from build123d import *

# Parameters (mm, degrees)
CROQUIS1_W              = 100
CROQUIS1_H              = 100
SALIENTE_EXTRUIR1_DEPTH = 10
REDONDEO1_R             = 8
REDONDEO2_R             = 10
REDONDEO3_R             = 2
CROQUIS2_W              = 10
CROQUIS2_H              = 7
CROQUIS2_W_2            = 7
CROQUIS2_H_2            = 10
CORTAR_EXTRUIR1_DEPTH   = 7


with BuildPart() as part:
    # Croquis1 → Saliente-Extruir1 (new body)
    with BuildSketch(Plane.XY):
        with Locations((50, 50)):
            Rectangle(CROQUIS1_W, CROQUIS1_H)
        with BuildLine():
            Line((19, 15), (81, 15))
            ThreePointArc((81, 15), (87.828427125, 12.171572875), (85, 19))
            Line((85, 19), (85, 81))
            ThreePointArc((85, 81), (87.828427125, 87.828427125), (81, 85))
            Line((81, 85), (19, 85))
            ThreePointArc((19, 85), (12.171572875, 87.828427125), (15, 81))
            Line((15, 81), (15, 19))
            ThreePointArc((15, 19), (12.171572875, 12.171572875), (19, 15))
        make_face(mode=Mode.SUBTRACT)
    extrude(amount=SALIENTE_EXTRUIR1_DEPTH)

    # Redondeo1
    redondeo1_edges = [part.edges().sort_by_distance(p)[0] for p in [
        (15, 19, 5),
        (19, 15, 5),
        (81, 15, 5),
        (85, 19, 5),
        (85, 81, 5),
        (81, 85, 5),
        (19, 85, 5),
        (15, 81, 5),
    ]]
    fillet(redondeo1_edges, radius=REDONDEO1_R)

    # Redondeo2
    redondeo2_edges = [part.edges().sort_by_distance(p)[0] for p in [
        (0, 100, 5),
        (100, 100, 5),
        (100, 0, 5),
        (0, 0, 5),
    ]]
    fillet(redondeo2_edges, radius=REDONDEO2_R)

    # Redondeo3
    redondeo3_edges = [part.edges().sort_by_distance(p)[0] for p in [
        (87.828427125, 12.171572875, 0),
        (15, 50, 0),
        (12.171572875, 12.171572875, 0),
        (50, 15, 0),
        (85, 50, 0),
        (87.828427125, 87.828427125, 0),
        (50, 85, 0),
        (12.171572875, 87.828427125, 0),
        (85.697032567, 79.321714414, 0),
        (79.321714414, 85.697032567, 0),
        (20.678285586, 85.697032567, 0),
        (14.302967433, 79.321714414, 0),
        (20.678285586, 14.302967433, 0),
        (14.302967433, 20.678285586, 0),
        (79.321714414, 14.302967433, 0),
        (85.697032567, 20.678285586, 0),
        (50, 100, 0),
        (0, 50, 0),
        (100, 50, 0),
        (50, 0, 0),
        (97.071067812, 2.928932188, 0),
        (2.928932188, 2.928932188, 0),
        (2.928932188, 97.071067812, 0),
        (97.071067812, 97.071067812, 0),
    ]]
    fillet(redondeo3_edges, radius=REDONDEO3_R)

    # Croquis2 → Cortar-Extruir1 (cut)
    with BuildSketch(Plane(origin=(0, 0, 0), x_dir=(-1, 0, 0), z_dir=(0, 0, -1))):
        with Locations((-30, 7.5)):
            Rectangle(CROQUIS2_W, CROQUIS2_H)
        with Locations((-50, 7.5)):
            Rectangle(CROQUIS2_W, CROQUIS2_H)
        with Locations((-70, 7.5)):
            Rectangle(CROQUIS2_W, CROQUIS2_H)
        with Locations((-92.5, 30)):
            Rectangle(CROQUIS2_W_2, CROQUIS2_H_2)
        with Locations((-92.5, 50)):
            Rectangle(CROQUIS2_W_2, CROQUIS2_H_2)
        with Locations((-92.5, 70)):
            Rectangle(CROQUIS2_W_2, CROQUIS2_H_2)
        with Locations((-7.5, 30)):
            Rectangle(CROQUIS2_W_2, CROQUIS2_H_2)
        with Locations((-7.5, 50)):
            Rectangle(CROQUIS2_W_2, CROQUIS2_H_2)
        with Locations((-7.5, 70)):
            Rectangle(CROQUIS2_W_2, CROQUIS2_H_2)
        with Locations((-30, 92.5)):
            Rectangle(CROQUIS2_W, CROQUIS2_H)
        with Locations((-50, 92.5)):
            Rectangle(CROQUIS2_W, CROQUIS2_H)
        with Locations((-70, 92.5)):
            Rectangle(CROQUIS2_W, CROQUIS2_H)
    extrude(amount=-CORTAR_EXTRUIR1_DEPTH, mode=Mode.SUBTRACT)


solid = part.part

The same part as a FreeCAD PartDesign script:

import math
import FreeCAD as App
import Part
import Sketcher

V = App.Vector
Q = App.Units.Quantity


def edges_at(feature, points):
    """Names of the edges that pass closest to the given points."""
    edges = feature.Shape.Edges
    near = lambda p: min(range(len(edges)), key=lambda i: edges[i].distToShape(Part.Vertex(*p))[0])
    return sorted({f"Edge{near(p) + 1}" for p in points})

doc = App.newDocument("Part")
body = doc.addObject("PartDesign::Body", "Body")

# Sketch on XY plane
sketch1 = body.newObject("Sketcher::SketchObject", "Sketch")
sketch1.AttachmentSupport = (doc.getObject("XY_Plane"), [""])
sketch1.MapMode = "FlatFace"
sketch1.addGeometry([
    Part.LineSegment(V(0, 100, 0), V(0, 0, 0)),  # 0
    Part.LineSegment(V(0, 0, 0), V(100, 0, 0)),  # 1
    Part.LineSegment(V(100, 0, 0), V(100, 100, 0)),  # 2
    Part.LineSegment(V(100, 100, 0), V(0, 100, 0)),  # 3
    Part.LineSegment(V(81, 15, 0), V(19, 15, 0)),  # 4
    Part.ArcOfCircle(Part.Circle(V(15, 15, 0), V(0, 0, 1), 4), math.radians(90), math.radians(360)),  # 5
    Part.LineSegment(V(15, 19, 0), V(15, 81, 0)),  # 6
    Part.ArcOfCircle(Part.Circle(V(15, 85, 0), V(0, 0, 1), 4), math.radians(0), math.radians(270)),  # 7
    Part.LineSegment(V(19, 85, 0), V(81, 85, 0)),  # 8
    Part.ArcOfCircle(Part.Circle(V(85, 85, 0), V(0, 0, 1), 4), math.radians(-90), math.radians(180)),  # 9
    Part.LineSegment(V(85, 81, 0), V(85, 19, 0)),  # 10
    Part.ArcOfCircle(Part.Circle(V(85, 15, 0), V(0, 0, 1), 4), math.radians(180), math.radians(450)),  # 11
], False)
sketch1.addConstraint([
    Sketcher.Constraint("Coincident", 0, 2, 1, 1),
    Sketcher.Constraint("Coincident", 1, 2, 2, 1),
    Sketcher.Constraint("Coincident", 2, 2, 3, 1),
    Sketcher.Constraint("Coincident", 3, 2, 0, 1),
    Sketcher.Constraint("Coincident", 4, 2, 5, 2),
    Sketcher.Constraint("Coincident", 5, 1, 6, 1),
    Sketcher.Constraint("Coincident", 6, 2, 7, 2),
    Sketcher.Constraint("Coincident", 7, 1, 8, 1),
    Sketcher.Constraint("Coincident", 8, 2, 9, 2),
    Sketcher.Constraint("Coincident", 9, 1, 10, 1),
    Sketcher.Constraint("Coincident", 10, 2, 11, 2),
    Sketcher.Constraint("Coincident", 11, 1, 4, 1),
    Sketcher.Constraint("Vertical", 0),
    Sketcher.Constraint("Horizontal", 1),
    Sketcher.Constraint("Vertical", 2),
    Sketcher.Constraint("Horizontal", 3),
    Sketcher.Constraint("Horizontal", 4),
    Sketcher.Constraint("Vertical", 6),
    Sketcher.Constraint("Horizontal", 8),
    Sketcher.Constraint("Vertical", 10),
    Sketcher.Constraint("Coincident", 0, 2, -1, 1),
    Sketcher.Constraint("Equal", 5, 7),
    Sketcher.Constraint("Equal", 7, 9),
    Sketcher.Constraint("Equal", 9, 11),
    Sketcher.Constraint("Horizontal", 7, 3, 9, 3),
    Sketcher.Constraint("Horizontal", 5, 3, 11, 3),
    Sketcher.Constraint("Horizontal", 11, 3, 4, 2),
    Sketcher.Constraint("Horizontal", 9, 3, 7, 1),
    Sketcher.Constraint("Vertical", 5, 3, 7, 3),
    Sketcher.Constraint("Vertical", 9, 3, 11, 3),
    Sketcher.Constraint("Vertical", 7, 3, 5, 1),
    Sketcher.Constraint("Vertical", 11, 3, 9, 1),
    Sketcher.Constraint("Equal", 3, 0),
    Sketcher.Constraint("Equal", 8, 6),
    Sketcher.Constraint("Radius", 5, Q("4 mm")),
    Sketcher.Constraint("DistanceX", 1, 1, 1, 2, Q("100 mm")),
    Sketcher.Constraint("DistanceX", 4, 2, 4, 1, Q("62 mm")),
    Sketcher.Constraint("DistanceX", -1, 1, 5, 3, Q("15 mm")),
    Sketcher.Constraint("DistanceY", -1, 1, 5, 3, Q("15 mm")),
])
pad1 = body.newObject("PartDesign::Pad", "Pad")
pad1.Profile = sketch1
pad1.Length = 10
doc.recompute()

fillet = body.newObject("PartDesign::Fillet", "Fillet")
fillet.Base = (pad1, edges_at(pad1, [
    (15, 19, 5),
    (19, 15, 5),
    (81, 15, 5),
    (85, 19, 5),
    (85, 81, 5),
    (81, 85, 5),
    (19, 85, 5),
    (15, 81, 5),
]))
fillet.Radius = 8
doc.recompute()

fillet2 = body.newObject("PartDesign::Fillet", "Fillet001")
fillet2.Base = (fillet, edges_at(fillet, [
    (0, 100, 5),
    (100, 100, 5),
    (100, 0, 5),
    (0, 0, 5),
]))
fillet2.Radius = 10
doc.recompute()

fillet3 = body.newObject("PartDesign::Fillet", "Fillet002")
fillet3.Base = (fillet2, edges_at(fillet2, [
    (87.828, 12.172, 0),
    (15, 50, 0),
    (12.172, 12.172, 0),
    (50, 15, 0),
    (85, 50, 0),
    (87.828, 87.828, 0),
    (50, 85, 0),
    (12.172, 87.828, 0),
    (85.697, 79.322, 0),
    (79.322, 85.697, 0),
    (20.678, 85.697, 0),
    (14.303, 79.322, 0),
    (20.678, 14.303, 0),
    (14.303, 20.678, 0),
    (79.322, 14.303, 0),
    (85.697, 20.678, 0),
    (50, 100, 0),
    (0, 50, 0),
    (100, 50, 0),
    (50, 0, 0),
    (97.071, 2.929, 0),
    (2.929, 2.929, 0),
    (2.929, 97.071, 0),
    (97.071, 97.071, 0),
]))
fillet3.Radius = 2

# Sketch on XY plane
sketch2 = body.newObject("Sketcher::SketchObject", "Sketch001")
sketch2.AttachmentSupport = (doc.getObject("XY_Plane"), [""])
sketch2.MapMode = "FlatFace"
sketch2.addGeometry([
    Part.LineSegment(V(35, 11, 0), V(35, 4, 0)),  # 0
    Part.LineSegment(V(35, 4, 0), V(25, 4, 0)),  # 1
    Part.LineSegment(V(25, 4, 0), V(25, 11, 0)),  # 2
    Part.LineSegment(V(25, 11, 0), V(35, 11, 0)),  # 3
    Part.LineSegment(V(55, 11, 0), V(55, 4, 0)),  # 4
    Part.LineSegment(V(55, 4, 0), V(45, 4, 0)),  # 5
    Part.LineSegment(V(45, 4, 0), V(45, 11, 0)),  # 6
    Part.LineSegment(V(45, 11, 0), V(55, 11, 0)),  # 7
    Part.LineSegment(V(75, 11, 0), V(75, 4, 0)),  # 8
    Part.LineSegment(V(75, 4, 0), V(65, 4, 0)),  # 9
    Part.LineSegment(V(65, 4, 0), V(65, 11, 0)),  # 10
    Part.LineSegment(V(65, 11, 0), V(75, 11, 0)),  # 11
    Part.LineSegment(V(96, 35, 0), V(96, 25, 0)),  # 12
    Part.LineSegment(V(96, 25, 0), V(89, 25, 0)),  # 13
    Part.LineSegment(V(89, 25, 0), V(89, 35, 0)),  # 14
    Part.LineSegment(V(89, 35, 0), V(96, 35, 0)),  # 15
    Part.LineSegment(V(96, 55, 0), V(96, 45, 0)),  # 16
    Part.LineSegment(V(96, 45, 0), V(89, 45, 0)),  # 17
    Part.LineSegment(V(89, 45, 0), V(89, 55, 0)),  # 18
    Part.LineSegment(V(89, 55, 0), V(96, 55, 0)),  # 19
    Part.LineSegment(V(96, 75, 0), V(96, 65, 0)),  # 20
    Part.LineSegment(V(96, 65, 0), V(89, 65, 0)),  # 21
    Part.LineSegment(V(89, 65, 0), V(89, 75, 0)),  # 22
    Part.LineSegment(V(89, 75, 0), V(96, 75, 0)),  # 23
    Part.LineSegment(V(11, 35, 0), V(11, 25, 0)),  # 24
    Part.LineSegment(V(11, 25, 0), V(4, 25, 0)),  # 25
    Part.LineSegment(V(4, 25, 0), V(4, 35, 0)),  # 26
    Part.LineSegment(V(4, 35, 0), V(11, 35, 0)),  # 27
    Part.LineSegment(V(11, 55, 0), V(11, 45, 0)),  # 28
    Part.LineSegment(V(11, 45, 0), V(4, 45, 0)),  # 29
    Part.LineSegment(V(4, 45, 0), V(4, 55, 0)),  # 30
    Part.LineSegment(V(4, 55, 0), V(11, 55, 0)),  # 31
    Part.LineSegment(V(11, 75, 0), V(11, 65, 0)),  # 32
    Part.LineSegment(V(11, 65, 0), V(4, 65, 0)),  # 33
    Part.LineSegment(V(4, 65, 0), V(4, 75, 0)),  # 34
    Part.LineSegment(V(4, 75, 0), V(11, 75, 0)),  # 35
    Part.LineSegment(V(35, 96, 0), V(35, 89, 0)),  # 36
    Part.LineSegment(V(35, 89, 0), V(25, 89, 0)),  # 37
    Part.LineSegment(V(25, 89, 0), V(25, 96, 0)),  # 38
    Part.LineSegment(V(25, 96, 0), V(35, 96, 0)),  # 39
    Part.LineSegment(V(55, 96, 0), V(55, 89, 0)),  # 40
    Part.LineSegment(V(55, 89, 0), V(45, 89, 0)),  # 41
    Part.LineSegment(V(45, 89, 0), V(45, 96, 0)),  # 42
    Part.LineSegment(V(45, 96, 0), V(55, 96, 0)),  # 43
    Part.LineSegment(V(75, 96, 0), V(75, 89, 0)),  # 44
    Part.LineSegment(V(75, 89, 0), V(65, 89, 0)),  # 45
    Part.LineSegment(V(65, 89, 0), V(65, 96, 0)),  # 46
    Part.LineSegment(V(65, 96, 0), V(75, 96, 0)),  # 47
], False)
sketch2.addConstraint([
    Sketcher.Constraint("Coincident", 0, 2, 1, 1),
    Sketcher.Constraint("Coincident", 1, 2, 2, 1),
    Sketcher.Constraint("Coincident", 2, 2, 3, 1),
    Sketcher.Constraint("Coincident", 3, 2, 0, 1),
    Sketcher.Constraint("Coincident", 4, 2, 5, 1),
    Sketcher.Constraint("Coincident", 5, 2, 6, 1),
    Sketcher.Constraint("Coincident", 6, 2, 7, 1),
    Sketcher.Constraint("Coincident", 7, 2, 4, 1),
    Sketcher.Constraint("Coincident", 8, 2, 9, 1),
    Sketcher.Constraint("Coincident", 9, 2, 10, 1),
    Sketcher.Constraint("Coincident", 10, 2, 11, 1),
    Sketcher.Constraint("Coincident", 11, 2, 8, 1),
    Sketcher.Constraint("Coincident", 12, 2, 13, 1),
    Sketcher.Constraint("Coincident", 13, 2, 14, 1),
    Sketcher.Constraint("Coincident", 14, 2, 15, 1),
    Sketcher.Constraint("Coincident", 15, 2, 12, 1),
    Sketcher.Constraint("Coincident", 16, 2, 17, 1),
    Sketcher.Constraint("Coincident", 17, 2, 18, 1),
    Sketcher.Constraint("Coincident", 18, 2, 19, 1),
    Sketcher.Constraint("Coincident", 19, 2, 16, 1),
    Sketcher.Constraint("Coincident", 20, 2, 21, 1),
    Sketcher.Constraint("Coincident", 21, 2, 22, 1),
    Sketcher.Constraint("Coincident", 22, 2, 23, 1),
    Sketcher.Constraint("Coincident", 23, 2, 20, 1),
    Sketcher.Constraint("Coincident", 24, 2, 25, 1),
    Sketcher.Constraint("Coincident", 25, 2, 26, 1),
    Sketcher.Constraint("Coincident", 26, 2, 27, 1),
    Sketcher.Constraint("Coincident", 27, 2, 24, 1),
    Sketcher.Constraint("Coincident", 28, 2, 29, 1),
    Sketcher.Constraint("Coincident", 29, 2, 30, 1),
    Sketcher.Constraint("Coincident", 30, 2, 31, 1),
    Sketcher.Constraint("Coincident", 31, 2, 28, 1),
    Sketcher.Constraint("Coincident", 32, 2, 33, 1),
    Sketcher.Constraint("Coincident", 33, 2, 34, 1),
    Sketcher.Constraint("Coincident", 34, 2, 35, 1),
    Sketcher.Constraint("Coincident", 35, 2, 32, 1),
    Sketcher.Constraint("Coincident", 36, 2, 37, 1),
    Sketcher.Constraint("Coincident", 37, 2, 38, 1),
    Sketcher.Constraint("Coincident", 38, 2, 39, 1),
    Sketcher.Constraint("Coincident", 39, 2, 36, 1),
    Sketcher.Constraint("Coincident", 40, 2, 41, 1),
    Sketcher.Constraint("Coincident", 41, 2, 42, 1),
    Sketcher.Constraint("Coincident", 42, 2, 43, 1),
    Sketcher.Constraint("Coincident", 43, 2, 40, 1),
    Sketcher.Constraint("Coincident", 44, 2, 45, 1),
    Sketcher.Constraint("Coincident", 45, 2, 46, 1),
    Sketcher.Constraint("Coincident", 46, 2, 47, 1),
    Sketcher.Constraint("Coincident", 47, 2, 44, 1),
    Sketcher.Constraint("Vertical", 0),
    Sketcher.Constraint("Horizontal", 1),
    Sketcher.Constraint("Vertical", 2),
    Sketcher.Constraint("Horizontal", 3),
    Sketcher.Constraint("Vertical", 4),
    Sketcher.Constraint("Horizontal", 5),
    Sketcher.Constraint("Vertical", 6),
    Sketcher.Constraint("Horizontal", 7),
    Sketcher.Constraint("Vertical", 8),
    Sketcher.Constraint("Horizontal", 9),
    Sketcher.Constraint("Vertical", 10),
    Sketcher.Constraint("Horizontal", 11),
    Sketcher.Constraint("Vertical", 12),
    Sketcher.Constraint("Horizontal", 13),
    Sketcher.Constraint("Vertical", 14),
    Sketcher.Constraint("Horizontal", 15),
    Sketcher.Constraint("Vertical", 16),
    Sketcher.Constraint("Horizontal", 17),
    Sketcher.Constraint("Vertical", 18),
    Sketcher.Constraint("Horizontal", 19),
    Sketcher.Constraint("Vertical", 20),
    Sketcher.Constraint("Horizontal", 21),
    Sketcher.Constraint("Vertical", 22),
    Sketcher.Constraint("Horizontal", 23),
    Sketcher.Constraint("Vertical", 24),
    Sketcher.Constraint("Horizontal", 25),
    Sketcher.Constraint("Vertical", 26),
    Sketcher.Constraint("Horizontal", 27),
    Sketcher.Constraint("Vertical", 28),
    Sketcher.Constraint("Horizontal", 29),
    Sketcher.Constraint("Vertical", 30),
    Sketcher.Constraint("Horizontal", 31),
    Sketcher.Constraint("Vertical", 32),
    Sketcher.Constraint("Horizontal", 33),
    Sketcher.Constraint("Vertical", 34),
    Sketcher.Constraint("Horizontal", 35),
    Sketcher.Constraint("Vertical", 36),
    Sketcher.Constraint("Horizontal", 37),
    Sketcher.Constraint("Vertical", 38),
    Sketcher.Constraint("Horizontal", 39),
    Sketcher.Constraint("Vertical", 40),
    Sketcher.Constraint("Horizontal", 41),
    Sketcher.Constraint("Vertical", 42),
    Sketcher.Constraint("Horizontal", 43),
    Sketcher.Constraint("Vertical", 44),
    Sketcher.Constraint("Horizontal", 45),
    Sketcher.Constraint("Vertical", 46),
    Sketcher.Constraint("Horizontal", 47),
    Sketcher.Constraint("Horizontal", 1, 2, 4, 2),
    Sketcher.Constraint("Horizontal", 3, 2, 6, 2),
    Sketcher.Constraint("Horizontal", 5, 2, 8, 2),
    Sketcher.Constraint("Horizontal", 7, 2, 10, 2),
    Sketcher.Constraint("Horizontal", 13, 2, 24, 2),
    Sketcher.Constraint("Horizontal", 15, 2, 26, 2),
    Sketcher.Constraint("Horizontal", 17, 2, 28, 2),
    Sketcher.Constraint("Horizontal", 19, 2, 30, 2),
    Sketcher.Constraint("Horizontal", 21, 2, 32, 2),
    Sketcher.Constraint("Horizontal", 23, 2, 34, 2),
    Sketcher.Constraint("Horizontal", 37, 2, 40, 2),
    Sketcher.Constraint("Horizontal", 39, 2, 42, 2),
    Sketcher.Constraint("Horizontal", 41, 2, 44, 2),
    Sketcher.Constraint("Horizontal", 43, 2, 46, 2),
    Sketcher.Constraint("Vertical", 15, 2, 16, 2),
    Sketcher.Constraint("Vertical", 14, 2, 17, 2),
    Sketcher.Constraint("Vertical", 19, 2, 20, 2),
    Sketcher.Constraint("Vertical", 18, 2, 21, 2),
    Sketcher.Constraint("Vertical", 27, 2, 28, 2),
    Sketcher.Constraint("Vertical", 26, 2, 29, 2),
    Sketcher.Constraint("Vertical", 31, 2, 32, 2),
    Sketcher.Constraint("Vertical", 30, 2, 33, 2),
    Sketcher.Constraint("Vertical", 3, 2, 36, 2),
    Sketcher.Constraint("Vertical", 2, 2, 37, 2),
    Sketcher.Constraint("Vertical", 7, 2, 40, 2),
    Sketcher.Constraint("Vertical", 6, 2, 41, 2),
    Sketcher.Constraint("Vertical", 11, 2, 44, 2),
    Sketcher.Constraint("Vertical", 10, 2, 45, 2),
    Sketcher.Constraint("Equal", 3, 5),
    Sketcher.Constraint("Equal", 7, 9),
    Sketcher.Constraint("Equal", 23, 25),
    Sketcher.Constraint("Equal", 35, 0),
    Sketcher.Constraint("Equal", 47, 12),
    Sketcher.Constraint("Equal", 14, 16),
    Sketcher.Constraint("Equal", 18, 20),
    Sketcher.Constraint("Equal", 10, 36),
    Sketcher.Constraint("DistanceX", 1, 2, 1, 1, Q("10 mm")),
    Sketcher.Constraint("DistanceX", 13, 2, 13, 1, Q("7 mm")),
    Sketcher.Constraint("DistanceX", -1, 1, 0, 2, Q("35 mm")),
    Sketcher.Constraint("DistanceY", -1, 1, 0, 2, Q("4 mm")),
    Sketcher.Constraint("DistanceX", -1, 1, 4, 2, Q("55 mm")),
    Sketcher.Constraint("DistanceX", -1, 1, 8, 2, Q("75 mm")),
    Sketcher.Constraint("DistanceX", -1, 1, 12, 2, Q("96 mm")),
    Sketcher.Constraint("DistanceY", -1, 1, 12, 2, Q("25 mm")),
    Sketcher.Constraint("DistanceY", -1, 1, 16, 2, Q("45 mm")),
    Sketcher.Constraint("DistanceY", -1, 1, 20, 2, Q("65 mm")),
    Sketcher.Constraint("DistanceX", -1, 1, 24, 2, Q("11 mm")),
    Sketcher.Constraint("DistanceY", -1, 1, 36, 2, Q("89 mm")),
])
pocket1 = body.newObject("PartDesign::Pocket", "Pocket")
pocket1.Profile = sketch2
pocket1.Length = 7
pocket1.Reversed = True

doc.recompute()
